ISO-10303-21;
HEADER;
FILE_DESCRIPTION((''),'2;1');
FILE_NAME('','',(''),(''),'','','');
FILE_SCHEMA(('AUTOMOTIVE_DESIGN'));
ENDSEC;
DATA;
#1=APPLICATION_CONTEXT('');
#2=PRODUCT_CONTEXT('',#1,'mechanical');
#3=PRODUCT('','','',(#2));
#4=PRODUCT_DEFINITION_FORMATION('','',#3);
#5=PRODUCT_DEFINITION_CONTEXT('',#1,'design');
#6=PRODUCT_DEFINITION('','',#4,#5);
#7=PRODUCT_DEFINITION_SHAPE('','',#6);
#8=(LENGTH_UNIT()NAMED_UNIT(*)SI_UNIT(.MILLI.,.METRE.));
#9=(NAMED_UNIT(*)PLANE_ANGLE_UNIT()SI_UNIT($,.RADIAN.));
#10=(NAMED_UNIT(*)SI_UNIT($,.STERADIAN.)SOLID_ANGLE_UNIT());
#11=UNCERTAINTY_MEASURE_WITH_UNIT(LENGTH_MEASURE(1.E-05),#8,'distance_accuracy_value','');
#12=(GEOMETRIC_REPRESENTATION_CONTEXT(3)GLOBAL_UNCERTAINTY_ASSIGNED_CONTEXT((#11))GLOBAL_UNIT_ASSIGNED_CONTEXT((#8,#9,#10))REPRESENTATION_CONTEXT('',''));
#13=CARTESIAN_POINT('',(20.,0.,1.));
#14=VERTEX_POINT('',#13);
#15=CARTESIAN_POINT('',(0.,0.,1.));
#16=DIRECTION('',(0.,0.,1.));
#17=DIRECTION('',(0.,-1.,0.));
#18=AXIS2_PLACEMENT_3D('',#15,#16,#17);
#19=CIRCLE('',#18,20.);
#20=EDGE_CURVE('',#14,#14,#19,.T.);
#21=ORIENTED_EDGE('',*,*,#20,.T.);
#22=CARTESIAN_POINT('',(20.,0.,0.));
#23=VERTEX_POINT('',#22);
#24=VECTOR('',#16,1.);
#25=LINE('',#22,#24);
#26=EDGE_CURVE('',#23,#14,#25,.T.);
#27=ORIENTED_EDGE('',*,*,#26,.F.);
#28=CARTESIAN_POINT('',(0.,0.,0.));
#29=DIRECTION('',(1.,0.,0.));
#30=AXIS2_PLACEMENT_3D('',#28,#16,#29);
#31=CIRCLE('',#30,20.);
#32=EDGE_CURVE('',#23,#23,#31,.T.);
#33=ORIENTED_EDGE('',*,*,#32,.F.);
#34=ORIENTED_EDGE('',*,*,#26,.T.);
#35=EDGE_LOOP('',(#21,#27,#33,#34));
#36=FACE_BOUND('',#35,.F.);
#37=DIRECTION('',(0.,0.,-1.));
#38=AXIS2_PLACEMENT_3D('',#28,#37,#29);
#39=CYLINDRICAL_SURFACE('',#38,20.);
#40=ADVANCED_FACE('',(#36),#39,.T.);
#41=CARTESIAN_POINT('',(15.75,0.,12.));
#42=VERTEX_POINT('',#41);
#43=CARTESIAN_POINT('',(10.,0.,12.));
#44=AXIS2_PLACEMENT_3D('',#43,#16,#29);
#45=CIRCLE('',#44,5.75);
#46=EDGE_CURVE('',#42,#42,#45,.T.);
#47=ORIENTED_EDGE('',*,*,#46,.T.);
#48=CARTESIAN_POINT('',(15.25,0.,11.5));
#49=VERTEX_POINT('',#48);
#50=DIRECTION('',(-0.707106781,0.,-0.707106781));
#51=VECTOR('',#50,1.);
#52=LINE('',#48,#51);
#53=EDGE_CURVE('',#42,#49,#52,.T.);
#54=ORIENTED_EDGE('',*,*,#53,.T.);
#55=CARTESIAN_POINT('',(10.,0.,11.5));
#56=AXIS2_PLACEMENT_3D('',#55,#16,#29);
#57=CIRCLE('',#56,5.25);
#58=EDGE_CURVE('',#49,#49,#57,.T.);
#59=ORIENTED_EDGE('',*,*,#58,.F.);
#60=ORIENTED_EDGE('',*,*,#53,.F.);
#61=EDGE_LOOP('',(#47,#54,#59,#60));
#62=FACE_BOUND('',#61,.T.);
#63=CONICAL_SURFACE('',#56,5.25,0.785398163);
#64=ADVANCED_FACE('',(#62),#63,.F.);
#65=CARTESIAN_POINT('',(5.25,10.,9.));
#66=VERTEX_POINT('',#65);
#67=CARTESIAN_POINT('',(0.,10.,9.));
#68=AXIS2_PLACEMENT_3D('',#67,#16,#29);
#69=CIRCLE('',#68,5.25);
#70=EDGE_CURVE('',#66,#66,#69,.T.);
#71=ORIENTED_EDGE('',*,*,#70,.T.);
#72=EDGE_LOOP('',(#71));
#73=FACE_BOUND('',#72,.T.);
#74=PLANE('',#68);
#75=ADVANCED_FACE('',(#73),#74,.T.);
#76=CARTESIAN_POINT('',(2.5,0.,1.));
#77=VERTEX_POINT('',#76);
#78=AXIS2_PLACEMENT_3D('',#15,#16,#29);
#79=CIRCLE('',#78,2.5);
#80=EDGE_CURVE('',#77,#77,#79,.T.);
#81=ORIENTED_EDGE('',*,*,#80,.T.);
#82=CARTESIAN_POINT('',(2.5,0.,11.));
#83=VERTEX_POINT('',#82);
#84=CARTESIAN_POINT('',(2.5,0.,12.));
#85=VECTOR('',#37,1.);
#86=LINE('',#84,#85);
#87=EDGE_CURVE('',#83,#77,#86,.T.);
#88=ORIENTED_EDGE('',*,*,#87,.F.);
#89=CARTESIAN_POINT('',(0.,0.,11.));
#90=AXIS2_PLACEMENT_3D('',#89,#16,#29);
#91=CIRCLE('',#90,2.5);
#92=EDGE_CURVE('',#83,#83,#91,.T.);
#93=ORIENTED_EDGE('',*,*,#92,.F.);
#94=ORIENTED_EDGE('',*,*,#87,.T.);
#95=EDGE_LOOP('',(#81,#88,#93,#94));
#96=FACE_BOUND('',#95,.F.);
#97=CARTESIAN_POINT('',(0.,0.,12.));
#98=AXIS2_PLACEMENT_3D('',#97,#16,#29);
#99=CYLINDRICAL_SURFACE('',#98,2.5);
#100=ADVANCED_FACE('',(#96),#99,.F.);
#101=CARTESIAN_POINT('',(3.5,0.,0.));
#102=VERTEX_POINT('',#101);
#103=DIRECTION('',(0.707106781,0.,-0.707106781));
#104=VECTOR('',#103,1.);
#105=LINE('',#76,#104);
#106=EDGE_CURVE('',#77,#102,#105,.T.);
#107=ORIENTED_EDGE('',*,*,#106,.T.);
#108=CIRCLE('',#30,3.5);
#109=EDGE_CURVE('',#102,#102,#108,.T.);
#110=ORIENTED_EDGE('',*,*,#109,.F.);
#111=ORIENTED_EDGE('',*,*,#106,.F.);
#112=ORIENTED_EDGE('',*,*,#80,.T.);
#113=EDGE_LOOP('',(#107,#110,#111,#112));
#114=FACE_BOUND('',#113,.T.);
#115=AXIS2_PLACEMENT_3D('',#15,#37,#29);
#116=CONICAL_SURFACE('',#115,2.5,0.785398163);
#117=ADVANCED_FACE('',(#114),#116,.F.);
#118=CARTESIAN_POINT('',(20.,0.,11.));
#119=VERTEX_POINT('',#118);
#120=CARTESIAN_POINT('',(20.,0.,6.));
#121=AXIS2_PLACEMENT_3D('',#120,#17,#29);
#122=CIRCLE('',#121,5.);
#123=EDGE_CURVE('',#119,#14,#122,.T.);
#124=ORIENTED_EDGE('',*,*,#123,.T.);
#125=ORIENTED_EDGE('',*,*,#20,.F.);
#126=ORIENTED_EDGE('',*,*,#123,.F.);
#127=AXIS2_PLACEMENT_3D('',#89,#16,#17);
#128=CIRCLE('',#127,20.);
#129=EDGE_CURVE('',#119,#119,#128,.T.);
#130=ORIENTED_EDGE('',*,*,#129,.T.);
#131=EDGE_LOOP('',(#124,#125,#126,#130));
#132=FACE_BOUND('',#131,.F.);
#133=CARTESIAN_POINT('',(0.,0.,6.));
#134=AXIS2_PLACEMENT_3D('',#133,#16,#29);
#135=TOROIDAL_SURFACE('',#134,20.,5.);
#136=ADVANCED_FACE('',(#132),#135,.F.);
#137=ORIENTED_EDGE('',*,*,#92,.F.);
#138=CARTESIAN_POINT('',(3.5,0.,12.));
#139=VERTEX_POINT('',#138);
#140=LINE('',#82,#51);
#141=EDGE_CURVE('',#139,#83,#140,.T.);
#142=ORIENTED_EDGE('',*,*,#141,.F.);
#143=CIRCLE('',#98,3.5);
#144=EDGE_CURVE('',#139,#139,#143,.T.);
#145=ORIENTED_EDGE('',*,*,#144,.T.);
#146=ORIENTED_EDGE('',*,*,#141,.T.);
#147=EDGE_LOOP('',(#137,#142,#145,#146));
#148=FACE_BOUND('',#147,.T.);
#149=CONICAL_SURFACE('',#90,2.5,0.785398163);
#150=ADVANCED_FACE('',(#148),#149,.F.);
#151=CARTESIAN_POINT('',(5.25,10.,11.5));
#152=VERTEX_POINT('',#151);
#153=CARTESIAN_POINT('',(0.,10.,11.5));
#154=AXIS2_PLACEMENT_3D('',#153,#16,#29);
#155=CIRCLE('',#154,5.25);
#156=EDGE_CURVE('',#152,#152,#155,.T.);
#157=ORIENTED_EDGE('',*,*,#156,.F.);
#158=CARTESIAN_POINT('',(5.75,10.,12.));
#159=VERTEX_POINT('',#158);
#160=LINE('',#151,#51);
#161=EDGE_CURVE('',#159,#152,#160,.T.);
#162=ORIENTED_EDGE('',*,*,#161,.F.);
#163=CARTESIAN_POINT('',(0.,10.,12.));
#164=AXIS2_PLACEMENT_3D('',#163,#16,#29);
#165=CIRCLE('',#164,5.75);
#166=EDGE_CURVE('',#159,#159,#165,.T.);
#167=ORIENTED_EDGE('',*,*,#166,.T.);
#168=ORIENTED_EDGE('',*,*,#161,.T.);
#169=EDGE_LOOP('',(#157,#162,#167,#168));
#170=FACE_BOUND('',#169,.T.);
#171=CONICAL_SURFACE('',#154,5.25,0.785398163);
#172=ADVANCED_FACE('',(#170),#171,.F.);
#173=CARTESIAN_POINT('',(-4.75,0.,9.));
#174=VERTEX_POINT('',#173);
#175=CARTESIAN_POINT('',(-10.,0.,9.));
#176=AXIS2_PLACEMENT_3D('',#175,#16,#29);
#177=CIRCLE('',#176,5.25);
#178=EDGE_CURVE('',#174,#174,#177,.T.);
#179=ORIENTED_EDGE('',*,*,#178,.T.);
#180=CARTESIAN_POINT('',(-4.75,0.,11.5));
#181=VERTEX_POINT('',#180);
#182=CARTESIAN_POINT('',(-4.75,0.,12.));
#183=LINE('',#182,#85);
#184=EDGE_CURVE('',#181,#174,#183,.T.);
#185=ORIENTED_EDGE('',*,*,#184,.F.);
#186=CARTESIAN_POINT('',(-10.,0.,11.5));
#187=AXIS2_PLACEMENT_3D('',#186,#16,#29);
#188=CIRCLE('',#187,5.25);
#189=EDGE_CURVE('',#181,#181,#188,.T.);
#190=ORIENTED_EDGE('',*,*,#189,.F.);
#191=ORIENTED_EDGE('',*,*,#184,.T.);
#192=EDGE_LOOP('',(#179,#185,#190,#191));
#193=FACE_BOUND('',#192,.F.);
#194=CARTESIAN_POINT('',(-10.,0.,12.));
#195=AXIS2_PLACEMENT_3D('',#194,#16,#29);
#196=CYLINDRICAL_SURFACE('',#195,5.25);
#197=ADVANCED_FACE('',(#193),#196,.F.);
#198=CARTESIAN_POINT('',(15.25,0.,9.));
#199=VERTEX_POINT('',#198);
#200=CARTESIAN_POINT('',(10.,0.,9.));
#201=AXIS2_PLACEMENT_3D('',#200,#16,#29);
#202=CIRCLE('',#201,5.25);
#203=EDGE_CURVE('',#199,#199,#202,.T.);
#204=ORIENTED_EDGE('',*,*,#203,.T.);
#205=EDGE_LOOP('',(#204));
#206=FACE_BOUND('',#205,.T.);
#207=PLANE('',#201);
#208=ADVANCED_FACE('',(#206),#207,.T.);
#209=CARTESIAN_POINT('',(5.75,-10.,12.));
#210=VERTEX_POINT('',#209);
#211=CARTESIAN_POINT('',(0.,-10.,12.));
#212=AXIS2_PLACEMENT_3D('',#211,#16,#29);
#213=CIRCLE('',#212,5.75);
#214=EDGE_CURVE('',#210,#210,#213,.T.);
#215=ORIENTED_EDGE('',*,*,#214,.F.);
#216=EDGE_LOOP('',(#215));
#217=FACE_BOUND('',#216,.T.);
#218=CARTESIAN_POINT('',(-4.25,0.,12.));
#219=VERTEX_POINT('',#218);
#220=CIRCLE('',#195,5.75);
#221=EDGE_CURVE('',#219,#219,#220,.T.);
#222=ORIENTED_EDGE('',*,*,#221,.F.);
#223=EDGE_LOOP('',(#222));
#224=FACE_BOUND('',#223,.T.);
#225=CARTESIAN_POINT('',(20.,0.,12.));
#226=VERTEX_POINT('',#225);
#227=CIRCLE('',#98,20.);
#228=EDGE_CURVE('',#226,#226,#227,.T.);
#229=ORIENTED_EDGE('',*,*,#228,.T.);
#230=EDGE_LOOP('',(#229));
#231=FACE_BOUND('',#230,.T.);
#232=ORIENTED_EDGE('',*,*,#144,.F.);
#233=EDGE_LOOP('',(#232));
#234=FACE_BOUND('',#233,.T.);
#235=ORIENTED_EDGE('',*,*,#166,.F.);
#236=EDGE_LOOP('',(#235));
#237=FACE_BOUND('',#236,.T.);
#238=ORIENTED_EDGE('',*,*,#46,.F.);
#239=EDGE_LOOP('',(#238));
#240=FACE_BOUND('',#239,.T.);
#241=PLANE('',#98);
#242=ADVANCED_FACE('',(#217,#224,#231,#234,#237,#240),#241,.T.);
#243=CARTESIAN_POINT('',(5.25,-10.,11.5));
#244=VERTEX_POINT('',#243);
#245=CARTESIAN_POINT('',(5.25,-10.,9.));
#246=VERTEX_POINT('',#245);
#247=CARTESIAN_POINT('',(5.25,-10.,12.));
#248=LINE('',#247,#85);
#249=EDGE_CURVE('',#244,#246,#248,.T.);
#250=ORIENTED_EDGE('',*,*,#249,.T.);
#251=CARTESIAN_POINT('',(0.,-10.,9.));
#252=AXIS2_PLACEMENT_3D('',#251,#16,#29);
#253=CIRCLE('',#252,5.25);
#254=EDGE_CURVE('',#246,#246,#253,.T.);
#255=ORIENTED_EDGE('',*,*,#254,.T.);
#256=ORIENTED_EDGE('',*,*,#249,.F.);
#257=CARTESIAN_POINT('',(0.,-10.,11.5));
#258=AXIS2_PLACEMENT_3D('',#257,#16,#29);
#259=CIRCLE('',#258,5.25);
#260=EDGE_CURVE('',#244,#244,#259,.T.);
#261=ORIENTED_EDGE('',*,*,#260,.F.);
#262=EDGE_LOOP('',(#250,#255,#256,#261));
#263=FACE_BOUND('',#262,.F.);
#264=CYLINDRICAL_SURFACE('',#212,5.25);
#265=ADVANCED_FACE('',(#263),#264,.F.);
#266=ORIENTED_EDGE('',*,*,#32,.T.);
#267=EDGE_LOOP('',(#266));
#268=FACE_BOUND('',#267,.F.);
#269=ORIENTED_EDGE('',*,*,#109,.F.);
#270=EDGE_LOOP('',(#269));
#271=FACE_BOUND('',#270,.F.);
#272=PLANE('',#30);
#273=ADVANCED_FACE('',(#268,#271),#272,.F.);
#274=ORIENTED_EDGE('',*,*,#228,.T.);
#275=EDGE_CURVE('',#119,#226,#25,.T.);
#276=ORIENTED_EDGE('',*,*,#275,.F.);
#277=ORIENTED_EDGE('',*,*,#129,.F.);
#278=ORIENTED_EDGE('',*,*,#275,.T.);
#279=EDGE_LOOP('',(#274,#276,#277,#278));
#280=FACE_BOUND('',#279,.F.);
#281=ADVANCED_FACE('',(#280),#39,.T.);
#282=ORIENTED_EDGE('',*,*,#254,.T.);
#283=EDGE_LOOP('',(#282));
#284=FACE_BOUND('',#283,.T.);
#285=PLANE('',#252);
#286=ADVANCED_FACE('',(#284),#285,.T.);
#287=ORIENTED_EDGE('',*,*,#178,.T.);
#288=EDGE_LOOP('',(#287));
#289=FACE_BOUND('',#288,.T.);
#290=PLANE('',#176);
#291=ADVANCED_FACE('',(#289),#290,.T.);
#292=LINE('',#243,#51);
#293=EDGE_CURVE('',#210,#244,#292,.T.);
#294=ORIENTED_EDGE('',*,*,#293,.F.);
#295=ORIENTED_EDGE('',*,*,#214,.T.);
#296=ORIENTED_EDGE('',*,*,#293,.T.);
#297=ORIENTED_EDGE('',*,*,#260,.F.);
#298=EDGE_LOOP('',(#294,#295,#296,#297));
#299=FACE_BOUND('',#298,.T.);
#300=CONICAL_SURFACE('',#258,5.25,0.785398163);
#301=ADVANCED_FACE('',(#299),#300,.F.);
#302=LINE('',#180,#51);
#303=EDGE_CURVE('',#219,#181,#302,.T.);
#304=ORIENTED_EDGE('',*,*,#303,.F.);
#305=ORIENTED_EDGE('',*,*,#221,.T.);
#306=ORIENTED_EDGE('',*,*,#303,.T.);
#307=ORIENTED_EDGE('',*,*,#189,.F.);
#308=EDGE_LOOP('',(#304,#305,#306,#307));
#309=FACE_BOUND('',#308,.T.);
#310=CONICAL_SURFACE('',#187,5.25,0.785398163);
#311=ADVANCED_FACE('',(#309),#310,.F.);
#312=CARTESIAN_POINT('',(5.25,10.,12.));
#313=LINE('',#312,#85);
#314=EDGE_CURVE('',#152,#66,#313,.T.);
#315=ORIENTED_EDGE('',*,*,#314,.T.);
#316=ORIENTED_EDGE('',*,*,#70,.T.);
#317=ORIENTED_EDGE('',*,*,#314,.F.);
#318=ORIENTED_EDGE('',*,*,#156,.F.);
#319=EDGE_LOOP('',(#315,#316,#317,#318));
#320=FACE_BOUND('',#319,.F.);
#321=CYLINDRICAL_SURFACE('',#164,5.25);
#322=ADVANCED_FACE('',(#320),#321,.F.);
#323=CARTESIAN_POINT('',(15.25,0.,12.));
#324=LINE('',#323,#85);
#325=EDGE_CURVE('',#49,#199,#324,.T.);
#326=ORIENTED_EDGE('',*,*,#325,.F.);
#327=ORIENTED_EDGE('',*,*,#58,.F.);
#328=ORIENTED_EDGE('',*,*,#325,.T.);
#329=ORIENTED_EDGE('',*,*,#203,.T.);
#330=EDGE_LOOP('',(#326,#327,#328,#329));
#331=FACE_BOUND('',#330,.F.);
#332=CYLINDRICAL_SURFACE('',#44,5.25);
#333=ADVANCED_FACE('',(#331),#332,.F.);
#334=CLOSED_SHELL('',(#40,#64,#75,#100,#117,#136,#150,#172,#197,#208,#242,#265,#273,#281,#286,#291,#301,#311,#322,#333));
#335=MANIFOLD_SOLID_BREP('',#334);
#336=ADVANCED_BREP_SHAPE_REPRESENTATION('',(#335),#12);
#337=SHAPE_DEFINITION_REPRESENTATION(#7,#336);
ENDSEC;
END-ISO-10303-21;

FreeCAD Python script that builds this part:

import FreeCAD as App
import Part
import Sketcher
Q = App.Units.Quantity


def edges_at(feature, points):
    """Names of the edges that pass closest to the given points."""
    edges = feature.Shape.Edges
    near = lambda p: min(range(len(edges)), key=lambda i: edges[i].distToShape(Part.Vertex(*p))[0])
    return sorted({f"Edge{near(p) + 1}" for p in points})

doc = App.newDocument("Part")
body = doc.addObject("PartDesign::Body", "Body")

# Sketch on XZ plane
sketch1 = body.newObject("Sketcher::SketchObject", "Sketch")
sketch1.AttachmentSupport = (doc.getObject("XZ_Plane"), [""])
sketch1.MapMode = "FlatFace"
sketch1.addGeometry(Part.Circle(App.Vector(20, 6, 0), App.Vector(0, 0, 1), 5), False)
sketch1.addConstraint([
    Sketcher.Constraint("Diameter", 0, Q("10 mm")),
    Sketcher.Constraint("DistanceX", -1, 1, 0, 3, Q("20 mm")),
    Sketcher.Constraint("DistanceY", -1, 1, 0, 3, Q("6 mm")),
])
revolution = body.newObject("PartDesign::Revolution", "Revolution")
revolution.Profile = sketch1
revolution.ReferenceAxis = (sketch1, ["V_Axis"])
revolution.Angle = 360
body2 = doc.addObject("PartDesign::Body", "Body001")

# Sketch on XY plane
sketch2 = body2.newObject("Sketcher::SketchObject", "Sketch001")
sketch2.AttachmentSupport = (doc.getObject("XY_Plane001"), [""])
sketch2.MapMode = "FlatFace"
sketch2.addGeometry(Part.Circle(App.Vector(0, 0, 0), App.Vector(0, 0, 1), 20), False)
sketch2.addConstraint([
    Sketcher.Constraint("Coincident", 0, 3, -1, 1),
    Sketcher.Constraint("Diameter", 0, Q("40 mm")),
])
pad1 = body2.newObject("PartDesign::Pad", "Pad")
pad1.Profile = sketch2
pad1.Length = 12

# Sketch on XY plane
sketch3 = body2.newObject("Sketcher::SketchObject", "Sketch002")
sketch3.AttachmentSupport = (doc.getObject("XY_Plane001"), [""])
sketch3.MapMode = "FlatFace"
sketch3.AttachmentOffset = App.Placement(App.Vector(0, 0, 12), App.Rotation())
sketch3.addGeometry(Part.Circle(App.Vector(0, 0, 0), App.Vector(0, 0, 1), 2.5), False)
sketch3.addConstraint([
    Sketcher.Constraint("Coincident", 0, 3, -1, 1),
    Sketcher.Constraint("Diameter", 0, Q("5 mm")),
])
pocket1 = body2.newObject("PartDesign::Pocket", "Pocket")
pocket1.Profile = sketch3
pocket1.Length = 12

# Sketch on XY plane
sketch4 = body2.newObject("Sketcher::SketchObject", "Sketch003")
sketch4.AttachmentSupport = (doc.getObject("XY_Plane001"), [""])
sketch4.MapMode = "FlatFace"
sketch4.AttachmentOffset = App.Placement(App.Vector(0, 0, 12), App.Rotation())
sketch4.addGeometry([
    Part.Circle(App.Vector(-10, 0, 0), App.Vector(0, 0, 1), 5),
    Part.Circle(App.Vector(10, 0, 0), App.Vector(0, 0, 1), 5),
    Part.Circle(App.Vector(0, 10, 0), App.Vector(0, 0, 1), 5),
    Part.Circle(App.Vector(0, -10, 0), App.Vector(0, 0, 1), 5),
], False)
sketch4.addConstraint([
    Sketcher.Constraint("Equal", 0, 1),
    Sketcher.Constraint("Equal", 1, 2),
    Sketcher.Constraint("Equal", 2, 3),
    Sketcher.Constraint("Symmetric", 0, 3, 1, 3, -1, 1),
    Sketcher.Constraint("Symmetric", 2, 3, 3, 3, -1, 1),
    Sketcher.Constraint("PointOnObject", 0, 3, -1),
    Sketcher.Constraint("PointOnObject", 2, 3, -2),
    Sketcher.Constraint("Diameter", 0, Q("10.5 mm")),
    Sketcher.Constraint("DistanceX", 0, 3, -1, 1, Q("10 mm")),
    Sketcher.Constraint("DistanceY", -1, 1, 2, 3, Q("10 mm")),
])
pocket2 = body2.newObject("PartDesign::Pocket", "Pocket001")
pocket2.Profile = sketch4
pocket2.Length = 3
doc.recompute()

chamfer = body2.newObject("PartDesign::Chamfer", "Chamfer")
chamfer.Base = (pocket2, edges_at(pocket2, [
    (-5.25, 10, 12),
    (-15.25, 0, 12),
    (-5.25, -10, 12),
    (4.75, 0, 12),
]))
chamfer.Size = 0.5
doc.recompute()

chamfer2 = body2.newObject("PartDesign::Chamfer", "Chamfer001")
chamfer2.Base = (chamfer, edges_at(chamfer, [(-2.5, 0, 12), (-2.5, 0, 0)]))
chamfer2.Size = 1
doc.recompute()

boolean = body2.newObject("PartDesign::Boolean", "Boolean")
boolean.Type = "Cut"
boolean.addObjects([body])

doc.recompute()
